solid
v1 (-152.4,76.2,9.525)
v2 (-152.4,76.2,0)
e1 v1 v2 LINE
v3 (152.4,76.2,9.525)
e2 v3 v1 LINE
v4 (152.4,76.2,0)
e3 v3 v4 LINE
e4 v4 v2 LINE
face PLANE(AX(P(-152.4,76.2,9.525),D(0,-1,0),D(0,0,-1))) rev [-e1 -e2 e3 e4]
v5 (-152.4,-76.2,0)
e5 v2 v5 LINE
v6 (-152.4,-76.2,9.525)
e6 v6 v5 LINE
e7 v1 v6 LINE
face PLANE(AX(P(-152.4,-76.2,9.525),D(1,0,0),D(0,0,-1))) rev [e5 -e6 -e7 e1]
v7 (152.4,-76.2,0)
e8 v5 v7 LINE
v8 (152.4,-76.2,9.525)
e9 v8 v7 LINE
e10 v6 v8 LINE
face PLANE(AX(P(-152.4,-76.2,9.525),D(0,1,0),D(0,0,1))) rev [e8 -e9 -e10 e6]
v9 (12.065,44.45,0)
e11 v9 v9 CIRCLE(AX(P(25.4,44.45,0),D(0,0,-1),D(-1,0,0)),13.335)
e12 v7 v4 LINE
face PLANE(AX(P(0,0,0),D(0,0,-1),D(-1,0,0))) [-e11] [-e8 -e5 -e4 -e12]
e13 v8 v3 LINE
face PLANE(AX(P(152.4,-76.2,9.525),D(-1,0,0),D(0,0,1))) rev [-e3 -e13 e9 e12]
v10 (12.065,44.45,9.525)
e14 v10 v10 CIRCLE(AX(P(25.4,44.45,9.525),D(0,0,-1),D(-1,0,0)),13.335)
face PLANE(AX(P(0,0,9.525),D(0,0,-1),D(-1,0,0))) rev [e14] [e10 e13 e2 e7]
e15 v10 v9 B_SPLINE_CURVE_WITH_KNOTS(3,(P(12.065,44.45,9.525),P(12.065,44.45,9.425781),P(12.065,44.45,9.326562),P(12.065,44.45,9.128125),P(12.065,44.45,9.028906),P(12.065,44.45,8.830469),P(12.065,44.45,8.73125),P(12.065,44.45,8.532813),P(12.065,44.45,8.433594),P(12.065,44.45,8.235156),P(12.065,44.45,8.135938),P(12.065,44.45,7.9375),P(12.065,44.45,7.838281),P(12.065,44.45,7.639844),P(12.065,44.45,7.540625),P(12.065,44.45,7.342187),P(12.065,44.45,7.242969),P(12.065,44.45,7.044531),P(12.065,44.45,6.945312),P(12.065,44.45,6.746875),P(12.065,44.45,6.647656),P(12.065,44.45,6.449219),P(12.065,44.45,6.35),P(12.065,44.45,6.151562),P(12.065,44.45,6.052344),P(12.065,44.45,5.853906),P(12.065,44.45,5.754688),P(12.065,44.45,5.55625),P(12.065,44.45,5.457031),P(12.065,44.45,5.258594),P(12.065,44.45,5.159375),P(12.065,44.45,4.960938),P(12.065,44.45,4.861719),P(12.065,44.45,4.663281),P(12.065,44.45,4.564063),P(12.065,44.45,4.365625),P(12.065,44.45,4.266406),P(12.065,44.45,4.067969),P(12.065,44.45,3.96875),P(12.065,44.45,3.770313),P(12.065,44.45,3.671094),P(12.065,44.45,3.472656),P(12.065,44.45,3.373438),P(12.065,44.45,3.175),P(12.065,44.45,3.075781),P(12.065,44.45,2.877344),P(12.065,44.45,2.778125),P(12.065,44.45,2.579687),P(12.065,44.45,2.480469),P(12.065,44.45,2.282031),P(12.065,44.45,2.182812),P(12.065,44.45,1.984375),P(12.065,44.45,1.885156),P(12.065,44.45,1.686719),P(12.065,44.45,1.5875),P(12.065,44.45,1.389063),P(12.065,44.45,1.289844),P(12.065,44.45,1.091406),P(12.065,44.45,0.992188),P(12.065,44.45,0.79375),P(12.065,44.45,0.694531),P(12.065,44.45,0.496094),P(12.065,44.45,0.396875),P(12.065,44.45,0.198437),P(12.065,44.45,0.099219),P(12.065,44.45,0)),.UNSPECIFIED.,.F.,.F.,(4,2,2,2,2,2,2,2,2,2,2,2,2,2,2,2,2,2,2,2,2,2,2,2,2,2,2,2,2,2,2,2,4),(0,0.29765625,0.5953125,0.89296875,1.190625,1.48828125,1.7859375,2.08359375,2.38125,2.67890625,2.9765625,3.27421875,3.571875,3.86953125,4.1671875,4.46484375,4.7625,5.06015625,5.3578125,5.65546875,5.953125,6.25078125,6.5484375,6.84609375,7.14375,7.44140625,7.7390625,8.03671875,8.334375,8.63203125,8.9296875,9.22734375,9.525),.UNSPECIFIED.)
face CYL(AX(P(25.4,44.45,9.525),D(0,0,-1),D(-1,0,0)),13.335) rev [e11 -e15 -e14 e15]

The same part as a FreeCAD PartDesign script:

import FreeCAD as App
import Part
import Sketcher
from FreeCAD import Vector
Q = App.Units.Quantity


def add_polygon(sketch, points):
    """Adds a closed chain of lines whose ends are joined by coincident constraints."""
    first, n = sketch.GeometryCount, len(points)
    for a, b in zip(points, points[1:] + points[:1]):
        sketch.addGeometry(Part.LineSegment(App.Vector(*a, 0), App.Vector(*b, 0)), False)
    for i in range(n):
        sketch.addConstraint(Sketcher.Constraint("Coincident", first + i, 2, first + (i + 1) % n, 1))

doc = App.newDocument("Part")
body = doc.addObject("PartDesign::Body", "Body")

# Sketch on XY plane
sketch1 = body.newObject("Sketcher::SketchObject", "Sketch")
sketch1.AttachmentSupport = (doc.getObject("XY_Plane"), [""])
sketch1.MapMode = "FlatFace"
add_polygon(sketch1, [(-152, 76), (-152, -76), (152, -76), (152, 76)])  # lines 0-3
sketch1.addConstraint(Sketcher.Constraint("Vertical", 0))
sketch1.addConstraint(Sketcher.Constraint("Horizontal", 1))
sketch1.addConstraint(Sketcher.Constraint("Vertical", 2))
sketch1.addConstraint(Sketcher.Constraint("Horizontal", 3))
sketch1.addConstraint(Sketcher.Constraint("Symmetric", 0, 2, 2, 2, -1, 1))
sketch1.addConstraint(Sketcher.Constraint("DistanceX", 1, 1, 1, 2, Q("12 in")))
sketch1.addConstraint(Sketcher.Constraint("DistanceY", 0, 2, 0, 1, Q("6 in")))
pad1 = body.newObject("PartDesign::Pad", "Pad")
pad1.Profile = sketch1
pad1.Length = Q("0.375 in")

# Sketch on XY plane
sketch2 = body.newObject("Sketcher::SketchObject", "Sketch001")
sketch2.AttachmentSupport = (doc.getObject("XY_Plane"), [""])
sketch2.MapMode = "FlatFace"
sketch2.addGeometry(Part.Circle(Vector(25, 44, 0), Vector(0, 0, 1), 13), False)
sketch2.addConstraint(Sketcher.Constraint("Diameter", 0, Q("1.05 in")))
sketch2.addConstraint(Sketcher.Constraint("DistanceX", -1, 1, 0, 3, Q("1 in")))
sketch2.addConstraint(Sketcher.Constraint("DistanceY", -1, 1, 0, 3, Q("1.75 in")))
pocket1 = body.newObject("PartDesign::Pocket", "Pocket")
pocket1.Profile = sketch2
pocket1.Type = "ThroughAll"
pocket1.Reversed = True

# Sketch on XY plane
sketch3 = body.newObject("Sketcher::SketchObject", "Sketch002")
sketch3.AttachmentSupport = (doc.getObject("XY_Plane"), [""])
sketch3.MapMode = "FlatFace"
sketch3.AttachmentOffset = App.Placement(Vector(0, 0, 2.75 * 25.4), App.Rotation())
sketch3.addGeometry(Part.Circle(Vector(25, 44, 0), Vector(0, 0, 1), 13), False)
sketch3.addConstraint(Sketcher.Constraint("Diameter", 0, Q("1.05 in")))
sketch3.addConstraint(Sketcher.Constraint("DistanceX", -1, 1, 0, 3, Q("1 in")))
sketch3.addConstraint(Sketcher.Constraint("DistanceY", -1, 1, 0, 3, Q("1.75 in")))
doc.recompute()
hole = body.newObject("PartDesign::Hole", "Hole")
hole.Profile = sketch3
hole.ThreadType = "None"
hole.Diameter = Q("1.05 in")
hole.DepthType = "Dimension"
hole.Depth = 60.324
hole.DrillPoint = "Angled"
hole.DrillPointAngle = 118

# Sketch on XY plane
sketch4 = body.newObject("Sketcher::SketchObject", "Sketch003")
sketch4.AttachmentSupport = (doc.getObject("XY_Plane"), [""])
sketch4.MapMode = "FlatFace"
sketch4.AttachmentOffset = App.Placement(Vector(0, 0, 0.375 * 25.4), App.Rotation())
sketch4.addGeometry(Part.Circle(Vector(25, 44, 0), Vector(0, 0, 1), 13), False)
sketch4.addConstraint(Sketcher.Constraint("Diameter", 0, Q("1.05 in")))
sketch4.addConstraint(Sketcher.Constraint("DistanceX", -1, 1, 0, 3, Q("1 in")))
sketch4.addConstraint(Sketcher.Constraint("DistanceY", -1, 1, 0, 3, Q("1.75 in")))
doc.recompute()
hole2 = body.newObject("PartDesign::Hole", "Hole001")
hole2.Profile = sketch4
hole2.ThreadType = "None"
hole2.Diameter = Q("1.05 in")
hole2.DepthType = "Dimension"
hole2.Depth = 60.324
hole2.DrillPoint = "Angled"
hole2.DrillPointAngle = 118

doc.recompute()
